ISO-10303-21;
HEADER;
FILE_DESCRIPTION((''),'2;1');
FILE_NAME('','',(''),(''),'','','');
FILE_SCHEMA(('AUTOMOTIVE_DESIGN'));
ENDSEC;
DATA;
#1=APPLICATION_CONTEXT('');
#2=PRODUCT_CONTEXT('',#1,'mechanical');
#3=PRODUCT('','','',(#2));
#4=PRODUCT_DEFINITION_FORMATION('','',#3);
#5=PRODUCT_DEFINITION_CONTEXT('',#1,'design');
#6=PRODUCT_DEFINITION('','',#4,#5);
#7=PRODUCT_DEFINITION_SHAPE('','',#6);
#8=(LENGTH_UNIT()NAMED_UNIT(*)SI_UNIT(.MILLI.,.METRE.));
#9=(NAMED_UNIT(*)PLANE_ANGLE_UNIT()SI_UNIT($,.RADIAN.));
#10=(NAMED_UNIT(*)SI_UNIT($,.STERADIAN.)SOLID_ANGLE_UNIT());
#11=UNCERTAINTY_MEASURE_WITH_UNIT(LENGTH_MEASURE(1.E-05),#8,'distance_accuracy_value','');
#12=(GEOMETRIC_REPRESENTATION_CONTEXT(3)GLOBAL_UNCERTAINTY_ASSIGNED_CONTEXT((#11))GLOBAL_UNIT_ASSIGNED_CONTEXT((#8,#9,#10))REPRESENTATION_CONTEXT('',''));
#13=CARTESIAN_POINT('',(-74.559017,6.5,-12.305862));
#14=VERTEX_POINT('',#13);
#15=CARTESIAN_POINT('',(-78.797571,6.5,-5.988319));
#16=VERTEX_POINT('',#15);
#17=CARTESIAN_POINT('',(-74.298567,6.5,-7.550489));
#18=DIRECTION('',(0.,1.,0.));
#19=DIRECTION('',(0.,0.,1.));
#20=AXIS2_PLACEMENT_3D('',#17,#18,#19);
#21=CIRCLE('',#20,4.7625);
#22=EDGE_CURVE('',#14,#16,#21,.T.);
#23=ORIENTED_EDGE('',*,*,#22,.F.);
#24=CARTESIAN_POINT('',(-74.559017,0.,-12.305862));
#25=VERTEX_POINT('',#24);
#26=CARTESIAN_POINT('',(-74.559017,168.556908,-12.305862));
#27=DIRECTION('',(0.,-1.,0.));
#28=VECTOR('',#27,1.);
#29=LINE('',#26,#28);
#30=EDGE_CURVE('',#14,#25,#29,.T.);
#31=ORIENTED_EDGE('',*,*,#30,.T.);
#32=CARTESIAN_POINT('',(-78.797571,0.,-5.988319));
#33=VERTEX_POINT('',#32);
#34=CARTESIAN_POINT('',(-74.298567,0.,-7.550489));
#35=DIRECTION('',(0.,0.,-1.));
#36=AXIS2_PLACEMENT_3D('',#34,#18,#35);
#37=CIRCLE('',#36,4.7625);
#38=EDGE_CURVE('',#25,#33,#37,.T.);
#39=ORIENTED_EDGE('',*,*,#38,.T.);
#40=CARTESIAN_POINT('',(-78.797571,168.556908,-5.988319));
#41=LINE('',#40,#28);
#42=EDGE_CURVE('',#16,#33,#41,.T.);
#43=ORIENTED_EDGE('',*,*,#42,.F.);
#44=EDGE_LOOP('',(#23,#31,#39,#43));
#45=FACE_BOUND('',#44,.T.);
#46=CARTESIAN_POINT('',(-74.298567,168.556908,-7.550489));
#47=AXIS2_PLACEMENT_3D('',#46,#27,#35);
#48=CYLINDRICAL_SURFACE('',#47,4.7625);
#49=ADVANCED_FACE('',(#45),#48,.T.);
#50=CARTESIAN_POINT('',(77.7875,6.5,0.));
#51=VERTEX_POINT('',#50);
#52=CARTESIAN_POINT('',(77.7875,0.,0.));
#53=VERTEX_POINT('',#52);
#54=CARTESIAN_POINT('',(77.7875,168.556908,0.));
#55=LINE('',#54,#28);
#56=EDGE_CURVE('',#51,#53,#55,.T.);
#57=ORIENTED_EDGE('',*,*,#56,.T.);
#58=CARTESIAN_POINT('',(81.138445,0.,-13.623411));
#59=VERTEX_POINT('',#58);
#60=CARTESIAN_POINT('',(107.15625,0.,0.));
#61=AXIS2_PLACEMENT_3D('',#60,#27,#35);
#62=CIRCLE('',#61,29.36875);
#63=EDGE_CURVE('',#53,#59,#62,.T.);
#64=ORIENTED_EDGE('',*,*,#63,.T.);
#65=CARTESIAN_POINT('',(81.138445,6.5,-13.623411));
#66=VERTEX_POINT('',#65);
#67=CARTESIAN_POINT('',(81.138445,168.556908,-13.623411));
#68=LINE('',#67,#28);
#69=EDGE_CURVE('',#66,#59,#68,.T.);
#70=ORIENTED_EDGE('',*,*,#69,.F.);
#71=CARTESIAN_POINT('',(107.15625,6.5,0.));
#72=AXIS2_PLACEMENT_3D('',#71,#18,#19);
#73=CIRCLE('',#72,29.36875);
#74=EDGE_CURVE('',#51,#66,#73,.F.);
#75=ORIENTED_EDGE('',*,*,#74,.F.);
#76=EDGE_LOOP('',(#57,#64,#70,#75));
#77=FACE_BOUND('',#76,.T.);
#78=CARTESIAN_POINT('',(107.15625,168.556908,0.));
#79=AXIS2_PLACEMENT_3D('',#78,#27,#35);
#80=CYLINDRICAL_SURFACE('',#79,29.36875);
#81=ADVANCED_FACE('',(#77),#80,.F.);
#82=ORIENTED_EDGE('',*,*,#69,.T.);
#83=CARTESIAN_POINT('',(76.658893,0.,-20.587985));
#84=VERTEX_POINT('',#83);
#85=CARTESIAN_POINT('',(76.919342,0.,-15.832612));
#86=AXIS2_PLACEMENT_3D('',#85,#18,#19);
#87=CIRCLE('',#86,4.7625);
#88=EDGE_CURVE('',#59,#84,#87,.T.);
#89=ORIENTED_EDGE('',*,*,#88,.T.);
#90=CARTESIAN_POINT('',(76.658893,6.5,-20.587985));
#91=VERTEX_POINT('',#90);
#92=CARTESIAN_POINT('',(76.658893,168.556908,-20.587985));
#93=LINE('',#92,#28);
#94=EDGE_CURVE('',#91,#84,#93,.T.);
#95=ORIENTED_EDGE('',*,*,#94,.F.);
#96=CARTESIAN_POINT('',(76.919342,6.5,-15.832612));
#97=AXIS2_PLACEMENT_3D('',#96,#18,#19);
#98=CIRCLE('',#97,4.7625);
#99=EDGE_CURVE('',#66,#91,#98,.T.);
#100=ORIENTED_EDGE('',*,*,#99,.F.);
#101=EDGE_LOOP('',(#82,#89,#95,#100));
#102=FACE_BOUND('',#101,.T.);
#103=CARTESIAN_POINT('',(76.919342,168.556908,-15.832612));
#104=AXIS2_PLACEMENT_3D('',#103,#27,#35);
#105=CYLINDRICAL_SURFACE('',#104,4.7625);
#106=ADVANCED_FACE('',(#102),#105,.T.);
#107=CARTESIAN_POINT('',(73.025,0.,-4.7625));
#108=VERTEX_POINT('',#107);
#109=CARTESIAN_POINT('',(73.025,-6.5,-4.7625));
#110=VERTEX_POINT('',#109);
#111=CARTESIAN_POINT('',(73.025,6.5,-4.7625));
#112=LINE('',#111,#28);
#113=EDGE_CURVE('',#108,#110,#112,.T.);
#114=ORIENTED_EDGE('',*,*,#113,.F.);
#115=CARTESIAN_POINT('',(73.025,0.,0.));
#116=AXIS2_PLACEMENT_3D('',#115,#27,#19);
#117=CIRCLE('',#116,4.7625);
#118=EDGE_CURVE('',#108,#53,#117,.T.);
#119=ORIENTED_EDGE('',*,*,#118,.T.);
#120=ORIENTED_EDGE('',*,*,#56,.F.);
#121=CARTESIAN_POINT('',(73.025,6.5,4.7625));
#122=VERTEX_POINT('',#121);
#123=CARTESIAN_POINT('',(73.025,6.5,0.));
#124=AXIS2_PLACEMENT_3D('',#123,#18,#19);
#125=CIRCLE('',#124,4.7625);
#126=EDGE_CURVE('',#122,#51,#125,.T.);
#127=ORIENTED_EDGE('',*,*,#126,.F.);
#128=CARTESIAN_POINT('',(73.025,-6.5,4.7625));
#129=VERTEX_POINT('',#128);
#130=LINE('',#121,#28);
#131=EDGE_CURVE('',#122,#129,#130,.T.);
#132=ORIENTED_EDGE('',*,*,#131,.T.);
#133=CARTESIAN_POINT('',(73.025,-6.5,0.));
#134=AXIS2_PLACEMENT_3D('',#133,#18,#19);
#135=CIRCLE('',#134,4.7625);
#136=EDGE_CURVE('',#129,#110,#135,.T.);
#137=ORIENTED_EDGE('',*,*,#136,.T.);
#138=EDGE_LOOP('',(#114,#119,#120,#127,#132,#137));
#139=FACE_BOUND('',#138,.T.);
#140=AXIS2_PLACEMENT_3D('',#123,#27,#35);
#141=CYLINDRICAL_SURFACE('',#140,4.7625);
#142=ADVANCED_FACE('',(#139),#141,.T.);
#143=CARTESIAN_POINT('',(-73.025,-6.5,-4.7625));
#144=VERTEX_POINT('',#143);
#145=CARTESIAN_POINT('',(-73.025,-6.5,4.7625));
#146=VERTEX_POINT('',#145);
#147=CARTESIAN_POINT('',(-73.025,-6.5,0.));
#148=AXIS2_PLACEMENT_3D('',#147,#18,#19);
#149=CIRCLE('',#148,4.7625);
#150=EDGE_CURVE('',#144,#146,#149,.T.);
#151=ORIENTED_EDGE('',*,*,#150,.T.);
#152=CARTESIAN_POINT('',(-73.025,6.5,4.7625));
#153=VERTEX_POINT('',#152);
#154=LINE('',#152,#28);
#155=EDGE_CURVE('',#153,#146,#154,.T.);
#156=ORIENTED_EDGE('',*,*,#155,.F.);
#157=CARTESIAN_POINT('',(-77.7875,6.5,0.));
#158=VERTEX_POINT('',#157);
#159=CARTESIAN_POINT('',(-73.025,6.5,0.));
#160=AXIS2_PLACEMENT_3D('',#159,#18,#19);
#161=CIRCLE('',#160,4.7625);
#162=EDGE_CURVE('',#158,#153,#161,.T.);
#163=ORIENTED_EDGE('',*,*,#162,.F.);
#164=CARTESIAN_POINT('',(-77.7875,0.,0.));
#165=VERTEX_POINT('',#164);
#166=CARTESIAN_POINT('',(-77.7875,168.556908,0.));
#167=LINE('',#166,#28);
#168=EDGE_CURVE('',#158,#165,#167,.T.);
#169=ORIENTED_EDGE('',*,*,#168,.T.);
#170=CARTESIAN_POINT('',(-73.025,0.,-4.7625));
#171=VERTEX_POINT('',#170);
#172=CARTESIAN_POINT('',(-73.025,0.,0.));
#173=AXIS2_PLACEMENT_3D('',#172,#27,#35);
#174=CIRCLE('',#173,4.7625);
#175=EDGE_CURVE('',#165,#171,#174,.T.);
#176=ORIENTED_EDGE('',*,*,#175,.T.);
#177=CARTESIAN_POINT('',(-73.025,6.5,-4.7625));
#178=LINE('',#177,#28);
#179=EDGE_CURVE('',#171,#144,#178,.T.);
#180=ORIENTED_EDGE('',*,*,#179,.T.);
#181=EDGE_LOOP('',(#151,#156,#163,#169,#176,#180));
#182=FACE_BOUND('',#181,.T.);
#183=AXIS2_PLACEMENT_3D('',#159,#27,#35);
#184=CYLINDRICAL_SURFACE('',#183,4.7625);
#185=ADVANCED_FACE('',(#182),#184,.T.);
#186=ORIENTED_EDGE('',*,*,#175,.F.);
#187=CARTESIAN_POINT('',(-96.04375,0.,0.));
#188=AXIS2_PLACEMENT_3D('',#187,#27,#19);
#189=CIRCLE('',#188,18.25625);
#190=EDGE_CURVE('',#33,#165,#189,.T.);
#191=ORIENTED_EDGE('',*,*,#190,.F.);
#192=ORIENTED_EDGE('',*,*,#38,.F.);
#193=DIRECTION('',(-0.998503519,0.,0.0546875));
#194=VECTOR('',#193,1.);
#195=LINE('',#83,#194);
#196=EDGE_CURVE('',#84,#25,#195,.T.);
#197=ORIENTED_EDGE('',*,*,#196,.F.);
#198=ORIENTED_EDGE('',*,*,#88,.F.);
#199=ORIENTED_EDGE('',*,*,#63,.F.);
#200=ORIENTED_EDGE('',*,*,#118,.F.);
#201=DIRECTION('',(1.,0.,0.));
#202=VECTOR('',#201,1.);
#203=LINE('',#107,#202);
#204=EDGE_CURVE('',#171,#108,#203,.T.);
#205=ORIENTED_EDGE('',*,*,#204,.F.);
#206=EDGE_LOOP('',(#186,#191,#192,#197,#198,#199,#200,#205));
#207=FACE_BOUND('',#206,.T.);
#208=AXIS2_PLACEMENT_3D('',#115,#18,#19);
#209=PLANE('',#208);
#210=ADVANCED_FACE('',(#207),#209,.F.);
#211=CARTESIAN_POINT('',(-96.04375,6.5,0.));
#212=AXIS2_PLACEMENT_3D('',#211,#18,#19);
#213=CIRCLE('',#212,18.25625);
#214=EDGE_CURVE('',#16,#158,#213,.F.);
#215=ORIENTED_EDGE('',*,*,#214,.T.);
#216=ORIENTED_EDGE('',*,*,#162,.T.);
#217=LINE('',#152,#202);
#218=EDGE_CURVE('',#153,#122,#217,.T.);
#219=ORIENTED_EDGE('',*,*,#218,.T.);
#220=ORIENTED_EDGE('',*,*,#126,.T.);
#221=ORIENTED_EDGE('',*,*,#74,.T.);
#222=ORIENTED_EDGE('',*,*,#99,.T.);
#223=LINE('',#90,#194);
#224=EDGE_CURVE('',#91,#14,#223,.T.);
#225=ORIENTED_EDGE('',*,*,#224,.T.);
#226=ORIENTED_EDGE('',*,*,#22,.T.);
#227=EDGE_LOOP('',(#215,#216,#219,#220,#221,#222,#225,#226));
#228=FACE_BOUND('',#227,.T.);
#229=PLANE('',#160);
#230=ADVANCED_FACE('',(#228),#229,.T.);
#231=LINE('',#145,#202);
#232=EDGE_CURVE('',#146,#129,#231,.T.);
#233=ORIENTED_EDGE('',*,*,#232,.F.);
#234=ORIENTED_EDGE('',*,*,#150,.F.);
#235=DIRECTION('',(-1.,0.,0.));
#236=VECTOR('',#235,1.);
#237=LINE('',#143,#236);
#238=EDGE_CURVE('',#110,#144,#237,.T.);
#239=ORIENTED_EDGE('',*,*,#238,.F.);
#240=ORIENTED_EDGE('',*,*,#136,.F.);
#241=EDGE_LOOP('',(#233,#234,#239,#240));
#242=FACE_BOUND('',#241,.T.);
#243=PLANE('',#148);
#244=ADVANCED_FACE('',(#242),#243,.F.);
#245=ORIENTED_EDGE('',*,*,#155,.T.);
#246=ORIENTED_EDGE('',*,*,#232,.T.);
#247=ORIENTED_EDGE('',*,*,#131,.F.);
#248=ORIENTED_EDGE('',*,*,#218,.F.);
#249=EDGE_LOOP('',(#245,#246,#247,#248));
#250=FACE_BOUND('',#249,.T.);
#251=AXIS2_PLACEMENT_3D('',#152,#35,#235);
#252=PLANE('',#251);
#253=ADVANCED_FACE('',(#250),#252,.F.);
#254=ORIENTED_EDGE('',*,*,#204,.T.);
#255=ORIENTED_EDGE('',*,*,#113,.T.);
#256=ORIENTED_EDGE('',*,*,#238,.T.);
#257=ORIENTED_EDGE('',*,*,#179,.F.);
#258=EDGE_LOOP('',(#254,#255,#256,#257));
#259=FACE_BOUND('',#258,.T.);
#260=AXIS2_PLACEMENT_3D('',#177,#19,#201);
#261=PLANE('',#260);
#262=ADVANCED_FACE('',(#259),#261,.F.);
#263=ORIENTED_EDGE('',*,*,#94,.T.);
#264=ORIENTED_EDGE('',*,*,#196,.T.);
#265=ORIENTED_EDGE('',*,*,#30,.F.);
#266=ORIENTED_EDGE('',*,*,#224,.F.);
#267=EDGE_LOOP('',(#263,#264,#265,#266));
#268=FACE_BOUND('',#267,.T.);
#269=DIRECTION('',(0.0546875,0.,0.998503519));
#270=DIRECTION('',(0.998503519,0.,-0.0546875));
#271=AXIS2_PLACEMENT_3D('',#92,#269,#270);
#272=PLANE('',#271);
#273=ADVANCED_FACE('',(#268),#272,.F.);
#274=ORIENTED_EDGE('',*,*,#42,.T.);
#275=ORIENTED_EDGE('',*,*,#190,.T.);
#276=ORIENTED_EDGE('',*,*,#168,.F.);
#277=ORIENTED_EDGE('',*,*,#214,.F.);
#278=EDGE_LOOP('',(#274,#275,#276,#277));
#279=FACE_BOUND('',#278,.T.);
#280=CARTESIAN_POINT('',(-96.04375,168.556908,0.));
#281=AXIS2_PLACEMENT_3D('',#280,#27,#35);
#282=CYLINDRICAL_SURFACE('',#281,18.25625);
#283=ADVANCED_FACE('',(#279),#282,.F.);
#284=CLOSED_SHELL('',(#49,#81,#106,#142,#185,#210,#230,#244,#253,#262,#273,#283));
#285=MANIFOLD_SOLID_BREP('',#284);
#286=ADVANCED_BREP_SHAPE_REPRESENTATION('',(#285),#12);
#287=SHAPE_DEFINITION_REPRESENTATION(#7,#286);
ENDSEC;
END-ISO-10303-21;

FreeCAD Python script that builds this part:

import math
import FreeCAD as App
import Part
import Sketcher
Q = App.Units.Quantity

doc = App.newDocument("Part")
params = doc.addObject("Spreadsheet::Sheet", "Params")
for row, (alias, value) in enumerate([
    ("sketch1_radius", "0.1875 in"),
    ("sketch1_width", "5.75 in"),
    ("pad1_length", "13 mm"),
    ("sketch2_radius", "0.1875 in"),
    ("sketch2_radius2", "0.71875 in"),
    ("sketch2_radius3", "1.15625 in"),
    ("pad2_length", "6.5 mm"),
], start=1):
    params.set(f"A{row}", alias)
    params.set(f"B{row}", "=" + value)
    params.setAlias(f"B{row}", alias)

body = doc.addObject("PartDesign::Body", "Body")

# Sketch on XZ plane
sketch1 = body.newObject("Sketcher::SketchObject", "Sketch")
sketch1.AttachmentSupport = (doc.getObject("XZ_Plane"), [""])
sketch1.MapMode = "FlatFace"
sketch1.addGeometry([
    Part.LineSegment(App.Vector(73, -4.8, 0), App.Vector(-73, -4.8, 0)),
    Part.ArcOfCircle(Part.Circle(App.Vector(-73, 0, 0), App.Vector(0, 0, 1), 4.8), math.radians(90), math.radians(270)),
    Part.LineSegment(App.Vector(-73, 4.8, 0), App.Vector(73, 4.8, 0)),
    Part.ArcOfCircle(Part.Circle(App.Vector(73, 0, 0), App.Vector(0, 0, 1), 4.8), math.radians(-90), math.radians(90)),
], False)
sketch1.addConstraint([
    Sketcher.Constraint("Tangent", 0, 2, 1, 2),
    Sketcher.Constraint("Tangent", 1, 1, 2, 1),
    Sketcher.Constraint("Tangent", 2, 2, 3, 2),
    Sketcher.Constraint("Tangent", 3, 1, 0, 1),
    Sketcher.Constraint("Horizontal", 0),
    Sketcher.Constraint("Horizontal", 2),
    Sketcher.Constraint("Symmetric", 1, 3, 3, 3, -1, 1),
    Sketcher.Constraint("Radius", 1, Q("0.1875 in")),
    Sketcher.Constraint("DistanceX", 0, 2, 0, 1, Q("5.75 in")),
])
sketch1.setExpression("Constraints[7]", "Params.sketch1_radius")
sketch1.setExpression("Constraints[8]", "Params.sketch1_width")
pad1 = body.newObject("PartDesign::Pad", "Pad")
pad1.Profile = sketch1
pad1.setExpression("Length", "Params.pad1_length")
pad1.Midplane = True

# Sketch on XZ plane
sketch2 = body.newObject("Sketcher::SketchObject", "Sketch001")
sketch2.AttachmentSupport = (doc.getObject("XZ_Plane"), [""])
sketch2.MapMode = "FlatFace"
sketch2.addGeometry([
    Part.LineSegment(App.Vector(76.7, -20.6, 0), App.Vector(-74.6, -12.3, 0)),  # 0
    Part.ArcOfCircle(Part.Circle(App.Vector(-74.3, -7.6, 0), App.Vector(0, 0, 1), 4.8), math.radians(161), math.radians(267)),  # 1
    Part.ArcOfCircle(Part.Circle(App.Vector(-96, 0, 0), App.Vector(0, 0, 1), 18.3), math.radians(-19.15), math.radians(0)),  # 2
    Part.ArcOfCircle(Part.Circle(App.Vector(-73, 0, 0), App.Vector(0, 0, 1), 4.8), math.radians(-180), math.radians(-90)),  # 3
    Part.LineSegment(App.Vector(-73, -4.8, 0), App.Vector(73, -4.8, 0)),  # 4
    Part.ArcOfCircle(Part.Circle(App.Vector(73, 0, 0), App.Vector(0, 0, 1), 4.8), math.radians(-90), math.radians(0)),  # 5
    Part.ArcOfCircle(Part.Circle(App.Vector(107.2, 0, 0), App.Vector(0, 0, 1), 29.4), math.radians(180), math.radians(208)),  # 6
    Part.ArcOfCircle(Part.Circle(App.Vector(76.9, -15.8, 0), App.Vector(0, 0, 1), 4.8), math.radians(-93), math.radians(28)),  # 7
], False)
sketch2.addConstraint([
    Sketcher.Constraint("Tangent", 0, 2, 1, 2),
    Sketcher.Constraint("Tangent", 1, 1, 2, 1),
    Sketcher.Constraint("Tangent", 2, 2, 3, 1),
    Sketcher.Constraint("Tangent", 3, 2, 4, 1),
    Sketcher.Constraint("Tangent", 4, 2, 5, 1),
    Sketcher.Constraint("Tangent", 5, 2, 6, 1),
    Sketcher.Constraint("Tangent", 6, 2, 7, 2),
    Sketcher.Constraint("Tangent", 7, 1, 0, 1),
    Sketcher.Constraint("Horizontal", 4),
    Sketcher.Constraint("Equal", 1, 3),
    Sketcher.Constraint("Equal", 3, 5),
    Sketcher.Constraint("Equal", 5, 7),
    Sketcher.Constraint("Symmetric", 3, 3, 5, 3, -1, 1),
    Sketcher.Constraint("PointOnObject", 2, 3, -1),
    Sketcher.Constraint("PointOnObject", 6, 3, -1),
    Sketcher.Constraint("Radius", 1, Q("0.1875 in")),
    Sketcher.Constraint("Radius", 2, Q("0.71875 in")),
    Sketcher.Constraint("Radius", 6, Q("1.15625 in")),
    Sketcher.Constraint("DistanceX", 2, 3, 6, 3, Q("8 in")),
    Sketcher.Constraint("DistanceY", 7, 3, 6, 2, 2.209202),
    Sketcher.Constraint("DistanceY", 1, 3, -1, 1, 7.550489),
])
sketch2.setExpression("Constraints[15]", "Params.sketch2_radius")
sketch2.setExpression("Constraints[16]", "Params.sketch2_radius2")
sketch2.setExpression("Constraints[17]", "Params.sketch2_radius3")
pad2 = body.newObject("PartDesign::Pad", "Pad001")
pad2.Profile = sketch2
pad2.setExpression("Length", "Params.pad2_length")
pad2.Reversed = True

doc.recompute()
